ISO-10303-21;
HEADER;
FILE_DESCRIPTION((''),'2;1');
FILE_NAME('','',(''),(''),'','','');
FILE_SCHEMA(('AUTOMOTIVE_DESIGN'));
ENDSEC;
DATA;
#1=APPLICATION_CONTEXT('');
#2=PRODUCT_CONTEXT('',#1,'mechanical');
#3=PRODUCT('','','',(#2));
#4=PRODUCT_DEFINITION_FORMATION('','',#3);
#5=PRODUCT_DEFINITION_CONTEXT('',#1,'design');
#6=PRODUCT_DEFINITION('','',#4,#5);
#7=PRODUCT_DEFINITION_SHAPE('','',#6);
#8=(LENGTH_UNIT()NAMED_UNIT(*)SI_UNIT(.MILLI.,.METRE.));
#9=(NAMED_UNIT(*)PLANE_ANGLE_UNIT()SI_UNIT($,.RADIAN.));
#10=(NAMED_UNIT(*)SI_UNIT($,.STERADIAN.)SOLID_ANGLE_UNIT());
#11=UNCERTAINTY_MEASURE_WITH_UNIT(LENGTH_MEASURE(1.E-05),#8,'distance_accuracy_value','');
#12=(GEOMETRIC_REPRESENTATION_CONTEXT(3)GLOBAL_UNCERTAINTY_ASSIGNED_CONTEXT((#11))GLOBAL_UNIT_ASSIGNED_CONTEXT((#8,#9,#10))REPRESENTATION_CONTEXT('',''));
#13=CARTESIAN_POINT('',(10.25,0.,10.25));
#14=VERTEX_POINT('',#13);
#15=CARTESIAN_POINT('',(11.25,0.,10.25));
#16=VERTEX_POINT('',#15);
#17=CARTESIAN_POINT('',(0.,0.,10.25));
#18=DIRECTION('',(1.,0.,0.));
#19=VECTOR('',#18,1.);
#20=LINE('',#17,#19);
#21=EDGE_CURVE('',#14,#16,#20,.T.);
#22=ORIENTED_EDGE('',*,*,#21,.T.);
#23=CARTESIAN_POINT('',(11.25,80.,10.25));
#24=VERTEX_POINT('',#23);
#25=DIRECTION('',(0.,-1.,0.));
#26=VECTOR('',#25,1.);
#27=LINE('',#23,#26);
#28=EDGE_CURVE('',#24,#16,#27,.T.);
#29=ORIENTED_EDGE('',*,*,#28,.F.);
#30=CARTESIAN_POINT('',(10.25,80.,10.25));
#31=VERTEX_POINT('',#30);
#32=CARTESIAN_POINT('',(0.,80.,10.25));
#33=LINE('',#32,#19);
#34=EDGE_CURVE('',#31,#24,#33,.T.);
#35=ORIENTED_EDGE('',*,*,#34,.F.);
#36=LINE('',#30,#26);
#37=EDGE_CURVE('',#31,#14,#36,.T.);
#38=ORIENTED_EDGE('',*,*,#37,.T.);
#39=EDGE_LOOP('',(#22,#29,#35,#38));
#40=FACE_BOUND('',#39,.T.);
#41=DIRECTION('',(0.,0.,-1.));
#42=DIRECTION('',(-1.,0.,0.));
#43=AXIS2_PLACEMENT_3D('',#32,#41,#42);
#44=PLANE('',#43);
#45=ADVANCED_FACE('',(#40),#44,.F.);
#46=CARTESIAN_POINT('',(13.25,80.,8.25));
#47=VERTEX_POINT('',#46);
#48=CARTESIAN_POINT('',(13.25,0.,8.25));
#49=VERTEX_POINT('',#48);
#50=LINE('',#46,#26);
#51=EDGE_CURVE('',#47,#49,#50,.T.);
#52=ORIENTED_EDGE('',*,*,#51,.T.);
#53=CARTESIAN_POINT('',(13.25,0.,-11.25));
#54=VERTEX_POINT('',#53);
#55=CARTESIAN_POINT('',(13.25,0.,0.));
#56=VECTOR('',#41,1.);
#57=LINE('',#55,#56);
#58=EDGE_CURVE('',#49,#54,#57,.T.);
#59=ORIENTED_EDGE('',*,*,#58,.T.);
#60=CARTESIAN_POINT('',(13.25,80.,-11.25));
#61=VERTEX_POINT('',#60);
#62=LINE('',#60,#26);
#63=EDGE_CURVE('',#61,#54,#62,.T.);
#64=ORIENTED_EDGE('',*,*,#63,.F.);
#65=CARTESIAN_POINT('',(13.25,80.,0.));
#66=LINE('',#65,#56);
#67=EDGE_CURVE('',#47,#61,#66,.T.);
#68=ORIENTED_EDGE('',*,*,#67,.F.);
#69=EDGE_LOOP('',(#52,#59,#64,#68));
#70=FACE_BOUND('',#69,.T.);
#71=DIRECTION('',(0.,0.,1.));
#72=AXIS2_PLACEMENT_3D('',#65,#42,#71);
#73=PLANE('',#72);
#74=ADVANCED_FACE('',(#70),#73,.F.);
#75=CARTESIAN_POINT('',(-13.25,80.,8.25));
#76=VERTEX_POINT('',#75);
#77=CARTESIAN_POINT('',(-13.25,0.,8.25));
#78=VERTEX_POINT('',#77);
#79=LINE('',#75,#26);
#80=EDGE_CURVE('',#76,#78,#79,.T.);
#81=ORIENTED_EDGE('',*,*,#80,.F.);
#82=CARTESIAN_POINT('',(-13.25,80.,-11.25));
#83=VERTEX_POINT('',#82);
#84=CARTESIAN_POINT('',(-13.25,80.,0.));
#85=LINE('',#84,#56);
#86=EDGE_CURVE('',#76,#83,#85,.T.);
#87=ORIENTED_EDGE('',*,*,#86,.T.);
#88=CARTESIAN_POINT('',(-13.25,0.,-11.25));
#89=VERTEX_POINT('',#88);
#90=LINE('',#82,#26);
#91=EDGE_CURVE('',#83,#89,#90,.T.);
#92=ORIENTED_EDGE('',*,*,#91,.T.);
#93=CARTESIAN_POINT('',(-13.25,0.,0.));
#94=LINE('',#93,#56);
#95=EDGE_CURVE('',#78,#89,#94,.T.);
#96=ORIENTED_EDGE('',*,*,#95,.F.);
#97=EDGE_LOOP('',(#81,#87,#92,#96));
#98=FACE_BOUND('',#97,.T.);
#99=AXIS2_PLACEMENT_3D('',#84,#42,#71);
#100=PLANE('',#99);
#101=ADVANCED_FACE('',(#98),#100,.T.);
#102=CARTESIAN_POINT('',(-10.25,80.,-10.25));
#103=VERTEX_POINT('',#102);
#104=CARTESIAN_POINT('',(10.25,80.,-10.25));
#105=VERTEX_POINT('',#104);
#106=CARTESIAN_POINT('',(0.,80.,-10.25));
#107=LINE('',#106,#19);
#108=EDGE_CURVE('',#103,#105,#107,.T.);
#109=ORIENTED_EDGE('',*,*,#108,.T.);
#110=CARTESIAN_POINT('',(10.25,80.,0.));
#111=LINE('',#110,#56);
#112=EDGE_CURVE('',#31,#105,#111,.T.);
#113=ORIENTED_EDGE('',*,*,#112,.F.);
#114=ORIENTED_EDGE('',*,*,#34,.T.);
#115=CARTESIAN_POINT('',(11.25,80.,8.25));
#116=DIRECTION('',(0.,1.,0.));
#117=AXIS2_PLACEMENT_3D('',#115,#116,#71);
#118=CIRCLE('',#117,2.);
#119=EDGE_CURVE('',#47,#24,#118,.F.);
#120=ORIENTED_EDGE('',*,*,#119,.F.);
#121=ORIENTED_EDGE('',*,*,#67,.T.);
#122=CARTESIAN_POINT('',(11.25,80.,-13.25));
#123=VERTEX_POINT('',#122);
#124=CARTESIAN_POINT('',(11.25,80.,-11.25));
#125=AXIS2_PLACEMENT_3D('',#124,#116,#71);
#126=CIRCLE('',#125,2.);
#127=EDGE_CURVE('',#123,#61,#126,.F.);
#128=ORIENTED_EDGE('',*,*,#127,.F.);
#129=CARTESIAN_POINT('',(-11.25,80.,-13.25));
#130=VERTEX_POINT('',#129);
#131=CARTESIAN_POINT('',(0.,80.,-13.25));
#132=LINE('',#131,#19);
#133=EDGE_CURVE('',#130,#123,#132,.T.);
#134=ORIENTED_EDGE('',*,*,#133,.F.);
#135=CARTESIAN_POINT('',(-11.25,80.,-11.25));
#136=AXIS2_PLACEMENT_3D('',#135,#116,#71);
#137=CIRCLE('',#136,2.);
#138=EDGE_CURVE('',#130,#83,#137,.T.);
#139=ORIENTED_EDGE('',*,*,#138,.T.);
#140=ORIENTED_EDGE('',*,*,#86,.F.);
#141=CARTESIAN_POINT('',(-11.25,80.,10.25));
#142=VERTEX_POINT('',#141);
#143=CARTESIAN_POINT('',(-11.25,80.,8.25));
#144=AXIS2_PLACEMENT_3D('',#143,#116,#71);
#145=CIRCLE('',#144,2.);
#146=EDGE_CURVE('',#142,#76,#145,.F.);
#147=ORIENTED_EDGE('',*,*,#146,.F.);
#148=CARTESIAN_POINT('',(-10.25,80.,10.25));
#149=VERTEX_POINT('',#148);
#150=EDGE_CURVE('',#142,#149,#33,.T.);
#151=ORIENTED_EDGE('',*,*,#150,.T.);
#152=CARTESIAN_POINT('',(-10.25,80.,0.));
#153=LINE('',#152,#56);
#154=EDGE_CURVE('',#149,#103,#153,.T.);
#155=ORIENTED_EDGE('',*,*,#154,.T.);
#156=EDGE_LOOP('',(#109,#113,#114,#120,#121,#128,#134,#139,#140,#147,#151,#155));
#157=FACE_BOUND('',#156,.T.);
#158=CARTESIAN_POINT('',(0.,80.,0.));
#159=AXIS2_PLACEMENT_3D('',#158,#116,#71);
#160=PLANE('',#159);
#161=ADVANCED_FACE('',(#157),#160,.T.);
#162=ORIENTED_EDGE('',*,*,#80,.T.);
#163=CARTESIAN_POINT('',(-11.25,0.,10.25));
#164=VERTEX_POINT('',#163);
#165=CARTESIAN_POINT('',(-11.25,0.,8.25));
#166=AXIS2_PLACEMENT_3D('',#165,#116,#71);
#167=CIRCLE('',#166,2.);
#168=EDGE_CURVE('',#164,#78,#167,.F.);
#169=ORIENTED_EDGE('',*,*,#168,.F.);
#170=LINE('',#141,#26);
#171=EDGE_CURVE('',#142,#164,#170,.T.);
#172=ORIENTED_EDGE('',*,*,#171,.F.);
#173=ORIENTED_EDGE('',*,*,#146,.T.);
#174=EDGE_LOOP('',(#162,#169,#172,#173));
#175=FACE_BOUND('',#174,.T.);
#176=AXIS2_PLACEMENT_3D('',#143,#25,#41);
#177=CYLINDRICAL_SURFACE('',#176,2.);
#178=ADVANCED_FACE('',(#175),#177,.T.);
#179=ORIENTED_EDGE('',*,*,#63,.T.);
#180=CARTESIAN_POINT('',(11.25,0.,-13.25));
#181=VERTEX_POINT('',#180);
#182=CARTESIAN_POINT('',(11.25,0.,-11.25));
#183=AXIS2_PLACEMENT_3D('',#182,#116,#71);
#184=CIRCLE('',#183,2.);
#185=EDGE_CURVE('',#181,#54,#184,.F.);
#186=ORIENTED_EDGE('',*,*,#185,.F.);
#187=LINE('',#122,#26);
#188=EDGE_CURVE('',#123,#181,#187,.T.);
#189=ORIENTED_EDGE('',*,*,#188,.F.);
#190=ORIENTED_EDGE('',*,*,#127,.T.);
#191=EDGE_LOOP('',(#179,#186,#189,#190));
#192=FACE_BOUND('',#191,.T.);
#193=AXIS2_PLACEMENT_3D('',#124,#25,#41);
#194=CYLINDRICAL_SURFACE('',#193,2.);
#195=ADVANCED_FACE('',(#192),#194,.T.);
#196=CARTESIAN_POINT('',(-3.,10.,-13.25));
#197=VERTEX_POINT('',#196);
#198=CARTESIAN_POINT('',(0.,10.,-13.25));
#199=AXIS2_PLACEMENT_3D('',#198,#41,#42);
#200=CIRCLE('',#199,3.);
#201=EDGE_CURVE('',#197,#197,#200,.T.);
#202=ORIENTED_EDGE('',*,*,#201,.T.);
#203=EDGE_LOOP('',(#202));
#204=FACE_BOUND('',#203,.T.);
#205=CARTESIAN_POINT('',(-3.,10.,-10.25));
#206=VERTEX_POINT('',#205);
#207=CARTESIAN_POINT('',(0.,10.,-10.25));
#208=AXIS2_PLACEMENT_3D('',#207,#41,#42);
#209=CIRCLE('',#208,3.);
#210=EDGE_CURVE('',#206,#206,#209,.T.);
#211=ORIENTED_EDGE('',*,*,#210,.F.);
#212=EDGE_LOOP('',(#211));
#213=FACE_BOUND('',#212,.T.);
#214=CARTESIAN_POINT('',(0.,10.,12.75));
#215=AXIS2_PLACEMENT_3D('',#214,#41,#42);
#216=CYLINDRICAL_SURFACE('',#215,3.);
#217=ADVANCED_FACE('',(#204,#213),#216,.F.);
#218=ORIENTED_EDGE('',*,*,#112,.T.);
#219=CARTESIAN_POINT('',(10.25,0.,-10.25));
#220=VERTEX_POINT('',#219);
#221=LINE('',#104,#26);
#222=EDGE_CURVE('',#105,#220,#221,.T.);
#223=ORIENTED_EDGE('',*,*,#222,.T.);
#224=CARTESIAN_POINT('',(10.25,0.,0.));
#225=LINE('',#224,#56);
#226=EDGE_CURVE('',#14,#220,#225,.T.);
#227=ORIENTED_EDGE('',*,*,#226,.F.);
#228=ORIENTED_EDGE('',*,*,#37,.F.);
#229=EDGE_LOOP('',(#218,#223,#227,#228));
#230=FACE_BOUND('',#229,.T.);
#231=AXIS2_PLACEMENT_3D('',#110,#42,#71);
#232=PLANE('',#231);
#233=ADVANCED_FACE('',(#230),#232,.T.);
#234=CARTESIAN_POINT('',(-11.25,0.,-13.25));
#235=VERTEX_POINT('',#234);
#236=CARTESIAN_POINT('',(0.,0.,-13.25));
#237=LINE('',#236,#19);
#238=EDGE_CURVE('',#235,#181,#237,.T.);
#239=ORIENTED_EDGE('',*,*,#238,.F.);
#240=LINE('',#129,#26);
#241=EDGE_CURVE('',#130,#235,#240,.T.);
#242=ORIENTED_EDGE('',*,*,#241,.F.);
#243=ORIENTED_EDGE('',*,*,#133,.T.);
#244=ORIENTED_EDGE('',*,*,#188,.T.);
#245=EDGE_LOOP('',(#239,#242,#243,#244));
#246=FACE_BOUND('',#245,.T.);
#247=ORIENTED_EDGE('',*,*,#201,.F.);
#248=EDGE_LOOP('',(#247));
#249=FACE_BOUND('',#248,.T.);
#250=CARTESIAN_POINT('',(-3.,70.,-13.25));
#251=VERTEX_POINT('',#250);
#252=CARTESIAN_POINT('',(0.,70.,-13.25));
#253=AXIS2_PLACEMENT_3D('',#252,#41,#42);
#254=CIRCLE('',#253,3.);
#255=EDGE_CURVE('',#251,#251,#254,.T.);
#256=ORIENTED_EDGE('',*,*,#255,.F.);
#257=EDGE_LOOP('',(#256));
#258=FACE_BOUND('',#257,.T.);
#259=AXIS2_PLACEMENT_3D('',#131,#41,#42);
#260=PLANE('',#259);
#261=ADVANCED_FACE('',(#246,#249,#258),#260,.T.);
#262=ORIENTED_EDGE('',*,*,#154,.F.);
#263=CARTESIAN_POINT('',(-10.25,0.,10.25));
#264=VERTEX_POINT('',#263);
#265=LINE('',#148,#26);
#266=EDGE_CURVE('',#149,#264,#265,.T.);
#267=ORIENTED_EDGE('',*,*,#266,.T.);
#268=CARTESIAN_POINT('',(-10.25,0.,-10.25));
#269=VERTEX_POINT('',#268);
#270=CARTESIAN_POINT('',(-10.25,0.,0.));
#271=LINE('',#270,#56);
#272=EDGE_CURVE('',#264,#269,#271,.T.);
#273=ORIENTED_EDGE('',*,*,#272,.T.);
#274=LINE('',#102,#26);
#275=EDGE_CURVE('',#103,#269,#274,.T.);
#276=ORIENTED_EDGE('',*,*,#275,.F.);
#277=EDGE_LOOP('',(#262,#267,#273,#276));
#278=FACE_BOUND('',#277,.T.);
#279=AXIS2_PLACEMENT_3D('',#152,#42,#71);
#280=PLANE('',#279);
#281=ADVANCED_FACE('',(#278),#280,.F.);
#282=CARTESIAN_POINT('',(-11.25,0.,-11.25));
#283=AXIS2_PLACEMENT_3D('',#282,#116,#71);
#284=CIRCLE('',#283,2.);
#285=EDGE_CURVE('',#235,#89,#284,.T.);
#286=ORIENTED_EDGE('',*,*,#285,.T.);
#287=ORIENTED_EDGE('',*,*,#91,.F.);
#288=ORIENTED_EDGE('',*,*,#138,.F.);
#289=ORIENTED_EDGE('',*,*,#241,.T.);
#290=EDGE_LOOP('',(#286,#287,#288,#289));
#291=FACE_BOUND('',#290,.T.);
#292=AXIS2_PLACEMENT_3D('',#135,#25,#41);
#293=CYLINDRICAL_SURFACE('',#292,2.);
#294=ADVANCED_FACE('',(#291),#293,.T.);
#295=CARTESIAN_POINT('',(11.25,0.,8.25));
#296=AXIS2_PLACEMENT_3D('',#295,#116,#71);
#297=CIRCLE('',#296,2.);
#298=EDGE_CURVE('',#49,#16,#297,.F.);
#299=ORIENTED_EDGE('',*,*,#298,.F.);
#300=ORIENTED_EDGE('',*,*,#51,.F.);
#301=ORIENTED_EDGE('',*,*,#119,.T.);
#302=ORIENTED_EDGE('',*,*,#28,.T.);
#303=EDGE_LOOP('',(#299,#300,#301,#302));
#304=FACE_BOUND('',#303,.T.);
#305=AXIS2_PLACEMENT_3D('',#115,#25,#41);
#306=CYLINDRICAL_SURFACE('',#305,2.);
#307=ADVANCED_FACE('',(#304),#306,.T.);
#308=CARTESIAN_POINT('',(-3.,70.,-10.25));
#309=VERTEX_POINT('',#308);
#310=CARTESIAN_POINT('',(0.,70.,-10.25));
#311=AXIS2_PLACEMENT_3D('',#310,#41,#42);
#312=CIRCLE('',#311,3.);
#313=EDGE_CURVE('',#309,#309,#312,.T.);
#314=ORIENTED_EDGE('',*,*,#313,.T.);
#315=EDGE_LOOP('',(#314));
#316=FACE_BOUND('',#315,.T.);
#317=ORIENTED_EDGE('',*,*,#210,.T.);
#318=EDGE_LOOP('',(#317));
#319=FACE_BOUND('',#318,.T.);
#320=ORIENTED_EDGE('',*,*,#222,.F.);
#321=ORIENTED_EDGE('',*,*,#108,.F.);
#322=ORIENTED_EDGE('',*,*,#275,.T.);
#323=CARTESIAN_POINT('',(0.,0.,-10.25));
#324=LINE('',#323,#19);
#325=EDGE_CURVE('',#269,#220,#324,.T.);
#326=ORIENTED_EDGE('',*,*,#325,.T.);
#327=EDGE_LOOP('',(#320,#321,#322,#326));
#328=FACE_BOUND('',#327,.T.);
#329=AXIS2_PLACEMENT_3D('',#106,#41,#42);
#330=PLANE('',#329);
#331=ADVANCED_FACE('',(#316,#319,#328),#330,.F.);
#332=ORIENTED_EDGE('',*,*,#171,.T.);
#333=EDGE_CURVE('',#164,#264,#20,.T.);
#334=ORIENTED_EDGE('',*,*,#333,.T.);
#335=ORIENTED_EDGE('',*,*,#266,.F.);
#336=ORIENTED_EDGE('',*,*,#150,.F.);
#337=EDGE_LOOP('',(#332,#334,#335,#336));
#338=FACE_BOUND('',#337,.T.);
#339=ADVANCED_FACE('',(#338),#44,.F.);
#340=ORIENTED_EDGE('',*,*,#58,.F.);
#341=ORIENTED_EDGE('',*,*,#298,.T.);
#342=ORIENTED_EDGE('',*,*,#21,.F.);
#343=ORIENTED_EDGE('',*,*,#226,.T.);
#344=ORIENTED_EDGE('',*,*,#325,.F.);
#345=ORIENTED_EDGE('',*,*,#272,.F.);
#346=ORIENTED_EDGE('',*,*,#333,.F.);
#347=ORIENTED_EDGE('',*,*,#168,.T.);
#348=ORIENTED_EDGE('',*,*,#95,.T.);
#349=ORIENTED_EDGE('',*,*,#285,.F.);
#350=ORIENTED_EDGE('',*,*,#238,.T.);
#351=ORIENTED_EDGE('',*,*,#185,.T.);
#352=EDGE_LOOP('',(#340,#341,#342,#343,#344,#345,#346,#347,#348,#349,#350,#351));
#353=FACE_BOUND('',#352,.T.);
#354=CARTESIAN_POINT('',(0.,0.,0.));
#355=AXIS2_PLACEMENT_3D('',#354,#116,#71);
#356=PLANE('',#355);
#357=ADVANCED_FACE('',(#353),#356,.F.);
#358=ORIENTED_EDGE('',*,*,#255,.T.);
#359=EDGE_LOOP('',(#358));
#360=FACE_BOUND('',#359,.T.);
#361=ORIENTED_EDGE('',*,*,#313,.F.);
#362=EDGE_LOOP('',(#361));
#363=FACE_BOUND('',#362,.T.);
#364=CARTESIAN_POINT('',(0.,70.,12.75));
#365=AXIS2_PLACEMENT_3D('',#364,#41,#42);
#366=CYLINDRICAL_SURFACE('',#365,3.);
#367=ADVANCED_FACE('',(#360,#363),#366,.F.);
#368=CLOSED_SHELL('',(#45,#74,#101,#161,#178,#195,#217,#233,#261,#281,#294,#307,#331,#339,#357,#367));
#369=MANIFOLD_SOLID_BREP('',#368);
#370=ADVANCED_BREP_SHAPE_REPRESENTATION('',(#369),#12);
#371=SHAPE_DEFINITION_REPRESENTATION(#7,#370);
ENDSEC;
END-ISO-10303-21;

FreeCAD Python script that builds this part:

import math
import FreeCAD as App
import Part
import Sketcher

V = App.Vector

doc = App.newDocument("Part")
body = doc.addObject("PartDesign::Body", "Body")

sketch1 = body.newObject("Sketcher::SketchObject", "Sketch")
sketch1.AttachmentSupport = (doc.getObject("XZ_Plane"), [""])
sketch1.MapMode = "FlatFace"
sketch1.addGeometry([
    Part.LineSegment(V(11.2, -13.2, 0), V(-11.2, -13.2, 0)),
    Part.ArcOfCircle(Part.Circle(V(-11.2, -11.2, 0), V(0, 0, 1), 2), math.radians(-180), math.radians(-90)),
    Part.LineSegment(V(-13.2, -11.2, 0), V(-13.2, 8.2, 0)),
    Part.ArcOfCircle(Part.Circle(V(-11.2, 8.2, 0), V(0, 0, 1), 2), math.radians(90), math.radians(180)),
    Part.LineSegment(V(-11.2, 10.2, 0), V(-10.2, 10.2, 0)),
    Part.LineSegment(V(-10.2, 10.2, 0), V(-10.2, -10.2, 0)),
    Part.LineSegment(V(-10.2, -10.2, 0), V(10.2, -10.2, 0)),
    Part.LineSegment(V(10.2, -10.2, 0), V(10.2, 10.2, 0)),
    Part.LineSegment(V(10.2, 10.2, 0), V(11.2, 10.2, 0)),
    Part.ArcOfCircle(Part.Circle(V(11.2, 8.2, 0), V(0, 0, 1), 2), math.radians(0), math.radians(90)),
    Part.LineSegment(V(13.2, 8.2, 0), V(13.2, -11.2, 0)),
    Part.ArcOfCircle(Part.Circle(V(11.2, -11.2, 0), V(0, 0, 1), 2), math.radians(-90), math.radians(0)),
], False)
sketch1.addConstraint([
    Sketcher.Constraint("Tangent", 0, 2, 1, 2),
    Sketcher.Constraint("Tangent", 1, 1, 2, 1),
    Sketcher.Constraint("Tangent", 2, 2, 3, 2),
    Sketcher.Constraint("Tangent", 3, 1, 4, 1),
    Sketcher.Constraint("Coincident", 4, 2, 5, 1),
    Sketcher.Constraint("Coincident", 5, 2, 6, 1),
    Sketcher.Constraint("Coincident", 6, 2, 7, 1),
    Sketcher.Constraint("Coincident", 7, 2, 8, 1),
    Sketcher.Constraint("Tangent", 8, 2, 9, 2),
    Sketcher.Constraint("Tangent", 9, 1, 10, 1),
    Sketcher.Constraint("Tangent", 10, 2, 11, 2),
    Sketcher.Constraint("Tangent", 11, 1, 0, 1),
    Sketcher.Constraint("Horizontal", 0),
    Sketcher.Constraint("Vertical", 2),
    Sketcher.Constraint("Horizontal", 4),
    Sketcher.Constraint("Vertical", 5),
    Sketcher.Constraint("Horizontal", 6),
    Sketcher.Constraint("Vertical", 7),
    Sketcher.Constraint("Horizontal", 8),
    Sketcher.Constraint("Vertical", 10),
    Sketcher.Constraint("Equal", 1, 3),
    Sketcher.Constraint("Equal", 3, 9),
    Sketcher.Constraint("Equal", 9, 11),
    Sketcher.Constraint("Symmetric", 4, 2, 6, 2, -1, 1),
    Sketcher.Constraint("Symmetric", 3, 3, 9, 3, -2),
    Sketcher.Constraint("Equal", 6, 5),
    Sketcher.Constraint("Radius", 1, 2.0),
    Sketcher.Constraint("DistanceX", 4, 1, 4, 2, 1.0),
    Sketcher.Constraint("DistanceX", 0, 2, 0, 1, 22.5),
    Sketcher.Constraint("DistanceY", 2, 1, 2, 2, 19.5),
])
pad1 = body.newObject("PartDesign::Pad", "Pad")
pad1.Profile = sketch1
pad1.Length = 80
pad1.Reversed = True

sketch2 = body.newObject("Sketcher::SketchObject", "Sketch001")
sketch2.AttachmentSupport = (doc.getObject("XY_Plane"), [""])
sketch2.MapMode = "FlatFace"
sketch2.AttachmentOffset = App.Placement(V(0, 0, -13.25), App.Rotation())
sketch2.addGeometry([
    Part.Circle(V(0, 70, 0), V(0, 0, 1), 3),
    Part.Circle(V(0, 10, 0), V(0, 0, 1), 3),
], False)
sketch2.addConstraint([
    Sketcher.Constraint("Equal", 0, 1),
    Sketcher.Constraint("PointOnObject", 0, 3, -2),
    Sketcher.Constraint("PointOnObject", 1, 3, -2),
    Sketcher.Constraint("Diameter", 0, 6.0),
    Sketcher.Constraint("DistanceY", -1, 1, 0, 3, 70.0),
    Sketcher.Constraint("DistanceY", -1, 1, 1, 3, 10.0),
])
pocket1 = body.newObject("PartDesign::Pocket", "Pocket")
pocket1.Profile = sketch2
pocket1.Length = 26
pocket1.Reversed = True

doc.recompute()
